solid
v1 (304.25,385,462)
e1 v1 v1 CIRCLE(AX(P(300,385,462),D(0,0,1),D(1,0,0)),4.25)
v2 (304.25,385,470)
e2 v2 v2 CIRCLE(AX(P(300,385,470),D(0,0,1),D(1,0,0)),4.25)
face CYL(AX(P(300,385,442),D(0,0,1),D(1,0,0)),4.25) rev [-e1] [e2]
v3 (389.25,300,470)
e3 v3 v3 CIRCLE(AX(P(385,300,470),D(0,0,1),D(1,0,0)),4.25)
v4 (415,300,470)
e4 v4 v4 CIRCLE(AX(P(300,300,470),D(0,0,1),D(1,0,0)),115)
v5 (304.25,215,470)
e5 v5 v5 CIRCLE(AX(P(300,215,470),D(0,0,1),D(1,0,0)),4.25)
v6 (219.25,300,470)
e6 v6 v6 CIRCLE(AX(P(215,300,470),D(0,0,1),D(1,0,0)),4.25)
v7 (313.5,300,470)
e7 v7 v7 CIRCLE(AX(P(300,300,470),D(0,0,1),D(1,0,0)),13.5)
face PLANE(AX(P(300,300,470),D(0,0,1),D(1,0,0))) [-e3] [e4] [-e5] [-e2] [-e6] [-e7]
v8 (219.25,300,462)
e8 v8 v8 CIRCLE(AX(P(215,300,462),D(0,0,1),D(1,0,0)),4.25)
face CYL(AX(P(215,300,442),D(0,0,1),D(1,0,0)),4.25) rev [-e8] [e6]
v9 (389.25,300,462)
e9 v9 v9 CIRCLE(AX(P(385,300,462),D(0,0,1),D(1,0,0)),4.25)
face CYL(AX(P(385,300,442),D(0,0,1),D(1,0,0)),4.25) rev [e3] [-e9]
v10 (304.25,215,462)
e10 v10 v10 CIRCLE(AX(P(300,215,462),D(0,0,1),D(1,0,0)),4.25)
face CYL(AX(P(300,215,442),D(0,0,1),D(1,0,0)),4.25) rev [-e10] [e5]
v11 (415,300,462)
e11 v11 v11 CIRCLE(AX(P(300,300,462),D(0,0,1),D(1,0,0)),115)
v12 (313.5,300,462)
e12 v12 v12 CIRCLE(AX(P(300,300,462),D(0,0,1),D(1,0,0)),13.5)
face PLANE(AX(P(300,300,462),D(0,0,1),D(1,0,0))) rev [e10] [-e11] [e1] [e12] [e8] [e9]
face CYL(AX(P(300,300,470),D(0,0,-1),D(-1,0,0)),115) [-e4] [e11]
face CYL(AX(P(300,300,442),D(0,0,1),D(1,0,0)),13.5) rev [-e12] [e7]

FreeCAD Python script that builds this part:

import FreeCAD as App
import Part
import Sketcher
from FreeCAD import Vector
Q = App.Units.Quantity

doc = App.newDocument("Part")
body = doc.addObject("PartDesign::Body", "Body")

sketch1 = body.newObject("Sketcher::SketchObject", "Sketch")
sketch1.AttachmentSupport = (doc.getObject("XY_Plane"), [""])
sketch1.MapMode = "FlatFace"
sketch1.AttachmentOffset = App.Placement(Vector(0, 0, 462), App.Rotation())
sketch1.addGeometry(Part.Circle(Vector(300, 300, 0), Vector(0, 0, 1), 115), False)
sketch1.addConstraint([
    Sketcher.Constraint("Diameter", 0, Q("230 mm")),
    Sketcher.Constraint("DistanceX", -1, 1, 0, 3, Q("300 mm")),
    Sketcher.Constraint("DistanceY", -1, 1, 0, 3, Q("300 mm")),
])
pad1 = body.newObject("PartDesign::Pad", "Pad")
pad1.Profile = sketch1
pad1.Length = 8

sketch2 = body.newObject("Sketcher::SketchObject", "Sketch001")
sketch2.AttachmentSupport = (doc.getObject("XY_Plane"), [""])
sketch2.MapMode = "FlatFace"
sketch2.AttachmentOffset = App.Placement(Vector(0, 0, 470), App.Rotation())
sketch2.addGeometry(Part.Circle(Vector(385, 300, 0), Vector(0, 0, 1), 4.2), False)
sketch2.addConstraint([
    Sketcher.Constraint("Diameter", 0, Q("8.5 mm")),
    Sketcher.Constraint("DistanceX", -1, 1, 0, 3, Q("385 mm")),
    Sketcher.Constraint("DistanceY", -1, 1, 0, 3, Q("300 mm")),
])
pocket1 = body.newObject("PartDesign::Pocket", "Pocket")
pocket1.Profile = sketch2
pocket1.Length = 28

sketch3 = body.newObject("Sketcher::SketchObject", "Sketch002")
sketch3.AttachmentSupport = (doc.getObject("XY_Plane"), [""])
sketch3.MapMode = "FlatFace"
sketch3.AttachmentOffset = App.Placement(Vector(0, 0, 470), App.Rotation())
sketch3.addGeometry(Part.Circle(Vector(215, 300, 0), Vector(0, 0, 1), 4.2), False)
sketch3.addConstraint([
    Sketcher.Constraint("Diameter", 0, Q("8.5 mm")),
    Sketcher.Constraint("DistanceX", -1, 1, 0, 3, Q("215 mm")),
    Sketcher.Constraint("DistanceY", -1, 1, 0, 3, Q("300 mm")),
])
pocket2 = body.newObject("PartDesign::Pocket", "Pocket001")
pocket2.Profile = sketch3
pocket2.Length = 28

sketch4 = body.newObject("Sketcher::SketchObject", "Sketch003")
sketch4.AttachmentSupport = (doc.getObject("XY_Plane"), [""])
sketch4.MapMode = "FlatFace"
sketch4.AttachmentOffset = App.Placement(Vector(0, 0, 470), App.Rotation())
sketch4.addGeometry(Part.Circle(Vector(300, 385, 0), Vector(0, 0, 1), 4.2), False)
sketch4.addConstraint([
    Sketcher.Constraint("Diameter", 0, Q("8.5 mm")),
    Sketcher.Constraint("DistanceX", -1, 1, 0, 3, Q("300 mm")),
    Sketcher.Constraint("DistanceY", -1, 1, 0, 3, Q("385 mm")),
])
pocket3 = body.newObject("PartDesign::Pocket", "Pocket002")
pocket3.Profile = sketch4
pocket3.Length = 28

sketch5 = body.newObject("Sketcher::SketchObject", "Sketch004")
sketch5.AttachmentSupport = (doc.getObject("XY_Plane"), [""])
sketch5.MapMode = "FlatFace"
sketch5.AttachmentOffset = App.Placement(Vector(0, 0, 470), App.Rotation())
sketch5.addGeometry(Part.Circle(Vector(300, 215, 0), Vector(0, 0, 1), 4.2), False)
sketch5.addConstraint([
    Sketcher.Constraint("Diameter", 0, Q("8.5 mm")),
    Sketcher.Constraint("DistanceX", -1, 1, 0, 3, Q("300 mm")),
    Sketcher.Constraint("DistanceY", -1, 1, 0, 3, Q("215 mm")),
])
pocket4 = body.newObject("PartDesign::Pocket", "Pocket003")
pocket4.Profile = sketch5
pocket4.Length = 28

sketch6 = body.newObject("Sketcher::SketchObject", "Sketch005")
sketch6.AttachmentSupport = (doc.getObject("XY_Plane"), [""])
sketch6.MapMode = "FlatFace"
sketch6.AttachmentOffset = App.Placement(Vector(0, 0, 470), App.Rotation())
sketch6.addGeometry(Part.Circle(Vector(300, 300, 0), Vector(0, 0, 1), 14), False)
sketch6.addConstraint([
    Sketcher.Constraint("Diameter", 0, Q("27 mm")),
    Sketcher.Constraint("DistanceX", -1, 1, 0, 3, Q("300 mm")),
    Sketcher.Constraint("DistanceY", -1, 1, 0, 3, Q("300 mm")),
])
pocket5 = body.newObject("PartDesign::Pocket", "Pocket004")
pocket5.Profile = sketch6
pocket5.Length = 28

doc.recompute()
